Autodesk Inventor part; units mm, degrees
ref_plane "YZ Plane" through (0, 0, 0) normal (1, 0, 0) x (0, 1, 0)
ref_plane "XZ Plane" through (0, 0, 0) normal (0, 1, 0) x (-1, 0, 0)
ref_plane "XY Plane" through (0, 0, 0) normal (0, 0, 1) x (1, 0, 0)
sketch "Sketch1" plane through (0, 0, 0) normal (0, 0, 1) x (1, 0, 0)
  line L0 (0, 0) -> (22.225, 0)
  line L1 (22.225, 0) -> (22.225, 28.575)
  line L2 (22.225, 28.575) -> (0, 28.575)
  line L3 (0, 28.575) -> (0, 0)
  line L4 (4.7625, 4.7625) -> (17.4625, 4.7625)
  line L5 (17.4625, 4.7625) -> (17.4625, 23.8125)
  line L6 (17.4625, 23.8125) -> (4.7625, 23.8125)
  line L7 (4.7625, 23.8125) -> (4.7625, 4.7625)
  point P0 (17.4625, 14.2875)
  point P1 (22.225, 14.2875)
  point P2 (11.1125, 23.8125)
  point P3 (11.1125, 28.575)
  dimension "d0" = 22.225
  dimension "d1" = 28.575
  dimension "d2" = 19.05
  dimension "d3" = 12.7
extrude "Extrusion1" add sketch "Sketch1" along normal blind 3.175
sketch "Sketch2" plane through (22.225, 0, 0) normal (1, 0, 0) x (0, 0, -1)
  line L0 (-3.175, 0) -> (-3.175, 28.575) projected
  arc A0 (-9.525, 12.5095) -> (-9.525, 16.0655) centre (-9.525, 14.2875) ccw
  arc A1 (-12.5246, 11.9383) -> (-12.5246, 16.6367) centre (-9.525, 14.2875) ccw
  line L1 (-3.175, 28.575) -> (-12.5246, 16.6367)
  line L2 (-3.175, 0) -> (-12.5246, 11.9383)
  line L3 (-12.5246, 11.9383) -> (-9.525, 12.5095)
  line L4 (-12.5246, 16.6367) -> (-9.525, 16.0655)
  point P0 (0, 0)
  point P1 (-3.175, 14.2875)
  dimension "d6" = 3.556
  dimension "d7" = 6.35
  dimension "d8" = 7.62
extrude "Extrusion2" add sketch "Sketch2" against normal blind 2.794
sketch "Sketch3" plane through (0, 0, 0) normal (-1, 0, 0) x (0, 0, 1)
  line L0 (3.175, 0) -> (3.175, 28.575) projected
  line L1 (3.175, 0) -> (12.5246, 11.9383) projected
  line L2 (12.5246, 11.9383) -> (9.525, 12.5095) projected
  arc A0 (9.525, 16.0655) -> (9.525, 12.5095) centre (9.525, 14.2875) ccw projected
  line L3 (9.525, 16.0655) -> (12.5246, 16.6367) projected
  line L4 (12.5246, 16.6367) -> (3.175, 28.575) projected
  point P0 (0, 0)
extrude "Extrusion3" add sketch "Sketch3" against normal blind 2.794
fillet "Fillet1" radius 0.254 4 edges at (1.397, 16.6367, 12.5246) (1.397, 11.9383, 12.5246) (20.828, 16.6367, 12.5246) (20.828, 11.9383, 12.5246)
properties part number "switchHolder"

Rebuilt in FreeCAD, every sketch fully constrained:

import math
import FreeCAD as App
import Part
import Sketcher
Q = App.Units.Quantity


def edges_at(feature, points):
    """Names of the edges that pass closest to the given points."""
    edges = feature.Shape.Edges
    near = lambda p: min(range(len(edges)), key=lambda i: edges[i].distToShape(Part.Vertex(*p))[0])
    return sorted({f"Edge{near(p) + 1}" for p in points})

doc = App.newDocument("Part")
body = doc.addObject("PartDesign::Body", "Body")

sketch1 = body.newObject("Sketcher::SketchObject", "Sketch")
sketch1.AttachmentSupport = (doc.getObject("XY_Plane"), [""])
sketch1.MapMode = "FlatFace"
sketch1.addGeometry(Part.LineSegment(App.Vector(0, 29, 0), App.Vector(0, 0, 0)), False)
sketch1.addGeometry(Part.LineSegment(App.Vector(0, 0, 0), App.Vector(22, 0, 0)), False)
sketch1.addGeometry(Part.LineSegment(App.Vector(22, 0, 0), App.Vector(22, 29, 0)), False)
sketch1.addGeometry(Part.LineSegment(App.Vector(22, 29, 0), App.Vector(0, 29, 0)), False)
sketch1.addGeometry(Part.LineSegment(App.Vector(17, 5, 0), App.Vector(5, 5, 0)), False)
sketch1.addGeometry(Part.LineSegment(App.Vector(5, 5, 0), App.Vector(5, 24, 0)), False)
sketch1.addGeometry(Part.LineSegment(App.Vector(5, 24, 0), App.Vector(17, 24, 0)), False)
sketch1.addGeometry(Part.LineSegment(App.Vector(17, 24, 0), App.Vector(17, 5, 0)), False)
sketch1.addConstraint(Sketcher.Constraint("Coincident", 0, 2, 1, 1))
sketch1.addConstraint(Sketcher.Constraint("Coincident", 1, 2, 2, 1))
sketch1.addConstraint(Sketcher.Constraint("Coincident", 2, 2, 3, 1))
sketch1.addConstraint(Sketcher.Constraint("Coincident", 3, 2, 0, 1))
sketch1.addConstraint(Sketcher.Constraint("Coincident", 4, 2, 5, 1))
sketch1.addConstraint(Sketcher.Constraint("Coincident", 5, 2, 6, 1))
sketch1.addConstraint(Sketcher.Constraint("Coincident", 6, 2, 7, 1))
sketch1.addConstraint(Sketcher.Constraint("Coincident", 7, 2, 4, 1))
sketch1.addConstraint(Sketcher.Constraint("Vertical", 0))
sketch1.addConstraint(Sketcher.Constraint("Horizontal", 1))
sketch1.addConstraint(Sketcher.Constraint("Vertical", 2))
sketch1.addConstraint(Sketcher.Constraint("Horizontal", 3))
sketch1.addConstraint(Sketcher.Constraint("Horizontal", 4))
sketch1.addConstraint(Sketcher.Constraint("Vertical", 5))
sketch1.addConstraint(Sketcher.Constraint("Horizontal", 6))
sketch1.addConstraint(Sketcher.Constraint("Vertical", 7))
sketch1.addConstraint(Sketcher.Constraint("Coincident", 0, 2, -1, 1))
sketch1.addConstraint(Sketcher.Constraint("DistanceX", 4, 2, 4, 1, Q("0.5 in")))
sketch1.addConstraint(Sketcher.Constraint("DistanceY", 5, 1, 5, 2, Q("0.75 in")))
sketch1.addConstraint(Sketcher.Constraint("DistanceX", 1, 1, 1, 2, Q("0.875 in")))
sketch1.addConstraint(Sketcher.Constraint("DistanceY", 0, 2, 0, 1, Q("1.125 in")))
sketch1.addConstraint(Sketcher.Constraint("DistanceX", -1, 1, 4, 2, Q("0.1875 in")))
sketch1.addConstraint(Sketcher.Constraint("DistanceY", -1, 1, 4, 2, Q("0.1875 in")))
pad1 = body.newObject("PartDesign::Pad", "Pad")
pad1.Profile = sketch1
pad1.Length = Q("0.125 in")

sketch2 = body.newObject("Sketcher::SketchObject", "Sketch001")
sketch2.AttachmentSupport = (doc.getObject("YZ_Plane"), [""])
sketch2.MapMode = "FlatFace"
sketch2.AttachmentOffset = App.Placement(App.Vector(0, 0, 0.875 * 25.4), App.Rotation())
sketch2.addGeometry(Part.LineSegment(App.Vector(11.9, 12.5, 0), App.Vector(0, 3.2, 0)), False)
sketch2.addGeometry(Part.LineSegment(App.Vector(0, 3.2, 0), App.Vector(28.6, 3.2, 0)), False)
sketch2.addGeometry(Part.LineSegment(App.Vector(28.6, 3.2, 0), App.Vector(16.6, 12.5, 0)), False)
sketch2.addGeometry(Part.LineSegment(App.Vector(16.6, 12.5, 0), App.Vector(16.1, 9.5, 0)), False)
sketch2.addGeometry(Part.ArcOfCircle(Part.Circle(App.Vector(14.3, 9.5, 0), App.Vector(0, 0, 1), 1.8), math.radians(180), math.radians(360)), False)
sketch2.addGeometry(Part.LineSegment(App.Vector(12.5, 9.5, 0), App.Vector(11.9, 12.5, 0)), False)
sketch2.addConstraint(Sketcher.Constraint("Coincident", 0, 2, 1, 1))
sketch2.addConstraint(Sketcher.Constraint("Coincident", 1, 2, 2, 1))
sketch2.addConstraint(Sketcher.Constraint("Coincident", 2, 2, 3, 1))
sketch2.addConstraint(Sketcher.Constraint("Coincident", 3, 2, 4, 2))
sketch2.addConstraint(Sketcher.Constraint("Coincident", 4, 1, 5, 1))
sketch2.addConstraint(Sketcher.Constraint("Coincident", 5, 2, 0, 1))
sketch2.addConstraint(Sketcher.Constraint("Horizontal", 1))
sketch2.addConstraint(Sketcher.Constraint("PointOnObject", 0, 2, -2))
sketch2.addConstraint(Sketcher.Constraint("Horizontal", 4, 3, 3, 2))
sketch2.addConstraint(Sketcher.Constraint("Horizontal", 3, 2, 4, 1))
sketch2.addConstraint(Sketcher.Constraint("Horizontal", 2, 2, 5, 2))
sketch2.addConstraint(Sketcher.Constraint("Equal", 0, 2))
sketch2.addConstraint(Sketcher.Constraint("Equal", 3, 5))
sketch2.addConstraint(Sketcher.Constraint("Radius", 4, Q("0.07 in")))
sketch2.addConstraint(Sketcher.Constraint("DistanceY", 0, 2, 4, 3, Q("0.25 in")))
sketch2.addConstraint(Sketcher.Constraint("DistanceX", 1, 1, 1, 2, Q("1.125 in")))
sketch2.addConstraint(Sketcher.Constraint("DistanceX", -1, 1, 5, 2, Q("0.47 in")))
sketch2.addConstraint(Sketcher.Constraint("Distance", 0, Q("0.597 in")))
sketch2.addConstraint(Sketcher.Constraint("DistanceY", -1, 1, 4, 3, Q("0.375 in")))
pad2 = body.newObject("PartDesign::Pad", "Pad001")
pad2.Profile = sketch2
pad2.Length = Q("0.11 in")
pad2.Reversed = True

sketch3 = body.newObject("Sketcher::SketchObject", "Sketch002")
sketch3.AttachmentSupport = (doc.getObject("YZ_Plane"), [""])
sketch3.MapMode = "FlatFace"
sketch3.addGeometry(Part.LineSegment(App.Vector(28.6, 3.2, 0), App.Vector(0, 3.2, 0)), False)
sketch3.addGeometry(Part.LineSegment(App.Vector(0, 3.2, 0), App.Vector(11.9, 12.5, 0)), False)
sketch3.addGeometry(Part.LineSegment(App.Vector(11.9, 12.5, 0), App.Vector(12.5, 9.5, 0)), False)
sketch3.addGeometry(Part.ArcOfCircle(Part.Circle(App.Vector(14.3, 9.5, 0), App.Vector(0, 0, 1), 1.8), math.radians(180), math.radians(360)), False)
sketch3.addGeometry(Part.LineSegment(App.Vector(16.1, 9.5, 0), App.Vector(16.6, 12.5, 0)), False)
sketch3.addGeometry(Part.LineSegment(App.Vector(16.6, 12.5, 0), App.Vector(28.6, 3.2, 0)), False)
sketch3.addConstraint(Sketcher.Constraint("Coincident", 0, 2, 1, 1))
sketch3.addConstraint(Sketcher.Constraint("Coincident", 1, 2, 2, 1))
sketch3.addConstraint(Sketcher.Constraint("Coincident", 2, 2, 3, 1))
sketch3.addConstraint(Sketcher.Constraint("Coincident", 3, 2, 4, 1))
sketch3.addConstraint(Sketcher.Constraint("Coincident", 4, 2, 5, 1))
sketch3.addConstraint(Sketcher.Constraint("Coincident", 5, 2, 0, 1))
sketch3.addConstraint(Sketcher.Constraint("Horizontal", 0))
sketch3.addConstraint(Sketcher.Constraint("PointOnObject", 0, 2, -2))
sketch3.addConstraint(Sketcher.Constraint("Horizontal", 3, 3, 2, 2))
sketch3.addConstraint(Sketcher.Constraint("Horizontal", 2, 2, 3, 2))
sketch3.addConstraint(Sketcher.Constraint("Horizontal", 1, 2, 4, 2))
sketch3.addConstraint(Sketcher.Constraint("Equal", 2, 4))
sketch3.addConstraint(Sketcher.Constraint("Equal", 1, 5))
sketch3.addConstraint(Sketcher.Constraint("Radius", 3, Q("0.07 in")))
sketch3.addConstraint(Sketcher.Constraint("DistanceX", 0, 2, 0, 1, Q("1.125 in")))
sketch3.addConstraint(Sketcher.Constraint("DistanceX", -1, 1, 1, 2, Q("0.47 in")))
sketch3.addConstraint(Sketcher.Constraint("DistanceY", 0, 2, 3, 3, Q("0.25 in")))
sketch3.addConstraint(Sketcher.Constraint("Distance", 1, Q("0.597 in")))
sketch3.addConstraint(Sketcher.Constraint("DistanceY", -1, 1, 3, 3, Q("0.375 in")))
pad3 = body.newObject("PartDesign::Pad", "Pad002")
pad3.Profile = sketch3
pad3.Length = Q("0.11 in")
doc.recompute()

fillet = body.newObject("PartDesign::Fillet", "Fillet")
fillet.Base = (pad3, edges_at(pad3, [
    (1.397, 16.637, 12.525),
    (1.397, 11.938, 12.525),
    (20.828, 16.637, 12.525),
    (20.828, 11.938, 12.525),
]))
fillet.Radius = Q("0.01 in")

doc.recompute()
